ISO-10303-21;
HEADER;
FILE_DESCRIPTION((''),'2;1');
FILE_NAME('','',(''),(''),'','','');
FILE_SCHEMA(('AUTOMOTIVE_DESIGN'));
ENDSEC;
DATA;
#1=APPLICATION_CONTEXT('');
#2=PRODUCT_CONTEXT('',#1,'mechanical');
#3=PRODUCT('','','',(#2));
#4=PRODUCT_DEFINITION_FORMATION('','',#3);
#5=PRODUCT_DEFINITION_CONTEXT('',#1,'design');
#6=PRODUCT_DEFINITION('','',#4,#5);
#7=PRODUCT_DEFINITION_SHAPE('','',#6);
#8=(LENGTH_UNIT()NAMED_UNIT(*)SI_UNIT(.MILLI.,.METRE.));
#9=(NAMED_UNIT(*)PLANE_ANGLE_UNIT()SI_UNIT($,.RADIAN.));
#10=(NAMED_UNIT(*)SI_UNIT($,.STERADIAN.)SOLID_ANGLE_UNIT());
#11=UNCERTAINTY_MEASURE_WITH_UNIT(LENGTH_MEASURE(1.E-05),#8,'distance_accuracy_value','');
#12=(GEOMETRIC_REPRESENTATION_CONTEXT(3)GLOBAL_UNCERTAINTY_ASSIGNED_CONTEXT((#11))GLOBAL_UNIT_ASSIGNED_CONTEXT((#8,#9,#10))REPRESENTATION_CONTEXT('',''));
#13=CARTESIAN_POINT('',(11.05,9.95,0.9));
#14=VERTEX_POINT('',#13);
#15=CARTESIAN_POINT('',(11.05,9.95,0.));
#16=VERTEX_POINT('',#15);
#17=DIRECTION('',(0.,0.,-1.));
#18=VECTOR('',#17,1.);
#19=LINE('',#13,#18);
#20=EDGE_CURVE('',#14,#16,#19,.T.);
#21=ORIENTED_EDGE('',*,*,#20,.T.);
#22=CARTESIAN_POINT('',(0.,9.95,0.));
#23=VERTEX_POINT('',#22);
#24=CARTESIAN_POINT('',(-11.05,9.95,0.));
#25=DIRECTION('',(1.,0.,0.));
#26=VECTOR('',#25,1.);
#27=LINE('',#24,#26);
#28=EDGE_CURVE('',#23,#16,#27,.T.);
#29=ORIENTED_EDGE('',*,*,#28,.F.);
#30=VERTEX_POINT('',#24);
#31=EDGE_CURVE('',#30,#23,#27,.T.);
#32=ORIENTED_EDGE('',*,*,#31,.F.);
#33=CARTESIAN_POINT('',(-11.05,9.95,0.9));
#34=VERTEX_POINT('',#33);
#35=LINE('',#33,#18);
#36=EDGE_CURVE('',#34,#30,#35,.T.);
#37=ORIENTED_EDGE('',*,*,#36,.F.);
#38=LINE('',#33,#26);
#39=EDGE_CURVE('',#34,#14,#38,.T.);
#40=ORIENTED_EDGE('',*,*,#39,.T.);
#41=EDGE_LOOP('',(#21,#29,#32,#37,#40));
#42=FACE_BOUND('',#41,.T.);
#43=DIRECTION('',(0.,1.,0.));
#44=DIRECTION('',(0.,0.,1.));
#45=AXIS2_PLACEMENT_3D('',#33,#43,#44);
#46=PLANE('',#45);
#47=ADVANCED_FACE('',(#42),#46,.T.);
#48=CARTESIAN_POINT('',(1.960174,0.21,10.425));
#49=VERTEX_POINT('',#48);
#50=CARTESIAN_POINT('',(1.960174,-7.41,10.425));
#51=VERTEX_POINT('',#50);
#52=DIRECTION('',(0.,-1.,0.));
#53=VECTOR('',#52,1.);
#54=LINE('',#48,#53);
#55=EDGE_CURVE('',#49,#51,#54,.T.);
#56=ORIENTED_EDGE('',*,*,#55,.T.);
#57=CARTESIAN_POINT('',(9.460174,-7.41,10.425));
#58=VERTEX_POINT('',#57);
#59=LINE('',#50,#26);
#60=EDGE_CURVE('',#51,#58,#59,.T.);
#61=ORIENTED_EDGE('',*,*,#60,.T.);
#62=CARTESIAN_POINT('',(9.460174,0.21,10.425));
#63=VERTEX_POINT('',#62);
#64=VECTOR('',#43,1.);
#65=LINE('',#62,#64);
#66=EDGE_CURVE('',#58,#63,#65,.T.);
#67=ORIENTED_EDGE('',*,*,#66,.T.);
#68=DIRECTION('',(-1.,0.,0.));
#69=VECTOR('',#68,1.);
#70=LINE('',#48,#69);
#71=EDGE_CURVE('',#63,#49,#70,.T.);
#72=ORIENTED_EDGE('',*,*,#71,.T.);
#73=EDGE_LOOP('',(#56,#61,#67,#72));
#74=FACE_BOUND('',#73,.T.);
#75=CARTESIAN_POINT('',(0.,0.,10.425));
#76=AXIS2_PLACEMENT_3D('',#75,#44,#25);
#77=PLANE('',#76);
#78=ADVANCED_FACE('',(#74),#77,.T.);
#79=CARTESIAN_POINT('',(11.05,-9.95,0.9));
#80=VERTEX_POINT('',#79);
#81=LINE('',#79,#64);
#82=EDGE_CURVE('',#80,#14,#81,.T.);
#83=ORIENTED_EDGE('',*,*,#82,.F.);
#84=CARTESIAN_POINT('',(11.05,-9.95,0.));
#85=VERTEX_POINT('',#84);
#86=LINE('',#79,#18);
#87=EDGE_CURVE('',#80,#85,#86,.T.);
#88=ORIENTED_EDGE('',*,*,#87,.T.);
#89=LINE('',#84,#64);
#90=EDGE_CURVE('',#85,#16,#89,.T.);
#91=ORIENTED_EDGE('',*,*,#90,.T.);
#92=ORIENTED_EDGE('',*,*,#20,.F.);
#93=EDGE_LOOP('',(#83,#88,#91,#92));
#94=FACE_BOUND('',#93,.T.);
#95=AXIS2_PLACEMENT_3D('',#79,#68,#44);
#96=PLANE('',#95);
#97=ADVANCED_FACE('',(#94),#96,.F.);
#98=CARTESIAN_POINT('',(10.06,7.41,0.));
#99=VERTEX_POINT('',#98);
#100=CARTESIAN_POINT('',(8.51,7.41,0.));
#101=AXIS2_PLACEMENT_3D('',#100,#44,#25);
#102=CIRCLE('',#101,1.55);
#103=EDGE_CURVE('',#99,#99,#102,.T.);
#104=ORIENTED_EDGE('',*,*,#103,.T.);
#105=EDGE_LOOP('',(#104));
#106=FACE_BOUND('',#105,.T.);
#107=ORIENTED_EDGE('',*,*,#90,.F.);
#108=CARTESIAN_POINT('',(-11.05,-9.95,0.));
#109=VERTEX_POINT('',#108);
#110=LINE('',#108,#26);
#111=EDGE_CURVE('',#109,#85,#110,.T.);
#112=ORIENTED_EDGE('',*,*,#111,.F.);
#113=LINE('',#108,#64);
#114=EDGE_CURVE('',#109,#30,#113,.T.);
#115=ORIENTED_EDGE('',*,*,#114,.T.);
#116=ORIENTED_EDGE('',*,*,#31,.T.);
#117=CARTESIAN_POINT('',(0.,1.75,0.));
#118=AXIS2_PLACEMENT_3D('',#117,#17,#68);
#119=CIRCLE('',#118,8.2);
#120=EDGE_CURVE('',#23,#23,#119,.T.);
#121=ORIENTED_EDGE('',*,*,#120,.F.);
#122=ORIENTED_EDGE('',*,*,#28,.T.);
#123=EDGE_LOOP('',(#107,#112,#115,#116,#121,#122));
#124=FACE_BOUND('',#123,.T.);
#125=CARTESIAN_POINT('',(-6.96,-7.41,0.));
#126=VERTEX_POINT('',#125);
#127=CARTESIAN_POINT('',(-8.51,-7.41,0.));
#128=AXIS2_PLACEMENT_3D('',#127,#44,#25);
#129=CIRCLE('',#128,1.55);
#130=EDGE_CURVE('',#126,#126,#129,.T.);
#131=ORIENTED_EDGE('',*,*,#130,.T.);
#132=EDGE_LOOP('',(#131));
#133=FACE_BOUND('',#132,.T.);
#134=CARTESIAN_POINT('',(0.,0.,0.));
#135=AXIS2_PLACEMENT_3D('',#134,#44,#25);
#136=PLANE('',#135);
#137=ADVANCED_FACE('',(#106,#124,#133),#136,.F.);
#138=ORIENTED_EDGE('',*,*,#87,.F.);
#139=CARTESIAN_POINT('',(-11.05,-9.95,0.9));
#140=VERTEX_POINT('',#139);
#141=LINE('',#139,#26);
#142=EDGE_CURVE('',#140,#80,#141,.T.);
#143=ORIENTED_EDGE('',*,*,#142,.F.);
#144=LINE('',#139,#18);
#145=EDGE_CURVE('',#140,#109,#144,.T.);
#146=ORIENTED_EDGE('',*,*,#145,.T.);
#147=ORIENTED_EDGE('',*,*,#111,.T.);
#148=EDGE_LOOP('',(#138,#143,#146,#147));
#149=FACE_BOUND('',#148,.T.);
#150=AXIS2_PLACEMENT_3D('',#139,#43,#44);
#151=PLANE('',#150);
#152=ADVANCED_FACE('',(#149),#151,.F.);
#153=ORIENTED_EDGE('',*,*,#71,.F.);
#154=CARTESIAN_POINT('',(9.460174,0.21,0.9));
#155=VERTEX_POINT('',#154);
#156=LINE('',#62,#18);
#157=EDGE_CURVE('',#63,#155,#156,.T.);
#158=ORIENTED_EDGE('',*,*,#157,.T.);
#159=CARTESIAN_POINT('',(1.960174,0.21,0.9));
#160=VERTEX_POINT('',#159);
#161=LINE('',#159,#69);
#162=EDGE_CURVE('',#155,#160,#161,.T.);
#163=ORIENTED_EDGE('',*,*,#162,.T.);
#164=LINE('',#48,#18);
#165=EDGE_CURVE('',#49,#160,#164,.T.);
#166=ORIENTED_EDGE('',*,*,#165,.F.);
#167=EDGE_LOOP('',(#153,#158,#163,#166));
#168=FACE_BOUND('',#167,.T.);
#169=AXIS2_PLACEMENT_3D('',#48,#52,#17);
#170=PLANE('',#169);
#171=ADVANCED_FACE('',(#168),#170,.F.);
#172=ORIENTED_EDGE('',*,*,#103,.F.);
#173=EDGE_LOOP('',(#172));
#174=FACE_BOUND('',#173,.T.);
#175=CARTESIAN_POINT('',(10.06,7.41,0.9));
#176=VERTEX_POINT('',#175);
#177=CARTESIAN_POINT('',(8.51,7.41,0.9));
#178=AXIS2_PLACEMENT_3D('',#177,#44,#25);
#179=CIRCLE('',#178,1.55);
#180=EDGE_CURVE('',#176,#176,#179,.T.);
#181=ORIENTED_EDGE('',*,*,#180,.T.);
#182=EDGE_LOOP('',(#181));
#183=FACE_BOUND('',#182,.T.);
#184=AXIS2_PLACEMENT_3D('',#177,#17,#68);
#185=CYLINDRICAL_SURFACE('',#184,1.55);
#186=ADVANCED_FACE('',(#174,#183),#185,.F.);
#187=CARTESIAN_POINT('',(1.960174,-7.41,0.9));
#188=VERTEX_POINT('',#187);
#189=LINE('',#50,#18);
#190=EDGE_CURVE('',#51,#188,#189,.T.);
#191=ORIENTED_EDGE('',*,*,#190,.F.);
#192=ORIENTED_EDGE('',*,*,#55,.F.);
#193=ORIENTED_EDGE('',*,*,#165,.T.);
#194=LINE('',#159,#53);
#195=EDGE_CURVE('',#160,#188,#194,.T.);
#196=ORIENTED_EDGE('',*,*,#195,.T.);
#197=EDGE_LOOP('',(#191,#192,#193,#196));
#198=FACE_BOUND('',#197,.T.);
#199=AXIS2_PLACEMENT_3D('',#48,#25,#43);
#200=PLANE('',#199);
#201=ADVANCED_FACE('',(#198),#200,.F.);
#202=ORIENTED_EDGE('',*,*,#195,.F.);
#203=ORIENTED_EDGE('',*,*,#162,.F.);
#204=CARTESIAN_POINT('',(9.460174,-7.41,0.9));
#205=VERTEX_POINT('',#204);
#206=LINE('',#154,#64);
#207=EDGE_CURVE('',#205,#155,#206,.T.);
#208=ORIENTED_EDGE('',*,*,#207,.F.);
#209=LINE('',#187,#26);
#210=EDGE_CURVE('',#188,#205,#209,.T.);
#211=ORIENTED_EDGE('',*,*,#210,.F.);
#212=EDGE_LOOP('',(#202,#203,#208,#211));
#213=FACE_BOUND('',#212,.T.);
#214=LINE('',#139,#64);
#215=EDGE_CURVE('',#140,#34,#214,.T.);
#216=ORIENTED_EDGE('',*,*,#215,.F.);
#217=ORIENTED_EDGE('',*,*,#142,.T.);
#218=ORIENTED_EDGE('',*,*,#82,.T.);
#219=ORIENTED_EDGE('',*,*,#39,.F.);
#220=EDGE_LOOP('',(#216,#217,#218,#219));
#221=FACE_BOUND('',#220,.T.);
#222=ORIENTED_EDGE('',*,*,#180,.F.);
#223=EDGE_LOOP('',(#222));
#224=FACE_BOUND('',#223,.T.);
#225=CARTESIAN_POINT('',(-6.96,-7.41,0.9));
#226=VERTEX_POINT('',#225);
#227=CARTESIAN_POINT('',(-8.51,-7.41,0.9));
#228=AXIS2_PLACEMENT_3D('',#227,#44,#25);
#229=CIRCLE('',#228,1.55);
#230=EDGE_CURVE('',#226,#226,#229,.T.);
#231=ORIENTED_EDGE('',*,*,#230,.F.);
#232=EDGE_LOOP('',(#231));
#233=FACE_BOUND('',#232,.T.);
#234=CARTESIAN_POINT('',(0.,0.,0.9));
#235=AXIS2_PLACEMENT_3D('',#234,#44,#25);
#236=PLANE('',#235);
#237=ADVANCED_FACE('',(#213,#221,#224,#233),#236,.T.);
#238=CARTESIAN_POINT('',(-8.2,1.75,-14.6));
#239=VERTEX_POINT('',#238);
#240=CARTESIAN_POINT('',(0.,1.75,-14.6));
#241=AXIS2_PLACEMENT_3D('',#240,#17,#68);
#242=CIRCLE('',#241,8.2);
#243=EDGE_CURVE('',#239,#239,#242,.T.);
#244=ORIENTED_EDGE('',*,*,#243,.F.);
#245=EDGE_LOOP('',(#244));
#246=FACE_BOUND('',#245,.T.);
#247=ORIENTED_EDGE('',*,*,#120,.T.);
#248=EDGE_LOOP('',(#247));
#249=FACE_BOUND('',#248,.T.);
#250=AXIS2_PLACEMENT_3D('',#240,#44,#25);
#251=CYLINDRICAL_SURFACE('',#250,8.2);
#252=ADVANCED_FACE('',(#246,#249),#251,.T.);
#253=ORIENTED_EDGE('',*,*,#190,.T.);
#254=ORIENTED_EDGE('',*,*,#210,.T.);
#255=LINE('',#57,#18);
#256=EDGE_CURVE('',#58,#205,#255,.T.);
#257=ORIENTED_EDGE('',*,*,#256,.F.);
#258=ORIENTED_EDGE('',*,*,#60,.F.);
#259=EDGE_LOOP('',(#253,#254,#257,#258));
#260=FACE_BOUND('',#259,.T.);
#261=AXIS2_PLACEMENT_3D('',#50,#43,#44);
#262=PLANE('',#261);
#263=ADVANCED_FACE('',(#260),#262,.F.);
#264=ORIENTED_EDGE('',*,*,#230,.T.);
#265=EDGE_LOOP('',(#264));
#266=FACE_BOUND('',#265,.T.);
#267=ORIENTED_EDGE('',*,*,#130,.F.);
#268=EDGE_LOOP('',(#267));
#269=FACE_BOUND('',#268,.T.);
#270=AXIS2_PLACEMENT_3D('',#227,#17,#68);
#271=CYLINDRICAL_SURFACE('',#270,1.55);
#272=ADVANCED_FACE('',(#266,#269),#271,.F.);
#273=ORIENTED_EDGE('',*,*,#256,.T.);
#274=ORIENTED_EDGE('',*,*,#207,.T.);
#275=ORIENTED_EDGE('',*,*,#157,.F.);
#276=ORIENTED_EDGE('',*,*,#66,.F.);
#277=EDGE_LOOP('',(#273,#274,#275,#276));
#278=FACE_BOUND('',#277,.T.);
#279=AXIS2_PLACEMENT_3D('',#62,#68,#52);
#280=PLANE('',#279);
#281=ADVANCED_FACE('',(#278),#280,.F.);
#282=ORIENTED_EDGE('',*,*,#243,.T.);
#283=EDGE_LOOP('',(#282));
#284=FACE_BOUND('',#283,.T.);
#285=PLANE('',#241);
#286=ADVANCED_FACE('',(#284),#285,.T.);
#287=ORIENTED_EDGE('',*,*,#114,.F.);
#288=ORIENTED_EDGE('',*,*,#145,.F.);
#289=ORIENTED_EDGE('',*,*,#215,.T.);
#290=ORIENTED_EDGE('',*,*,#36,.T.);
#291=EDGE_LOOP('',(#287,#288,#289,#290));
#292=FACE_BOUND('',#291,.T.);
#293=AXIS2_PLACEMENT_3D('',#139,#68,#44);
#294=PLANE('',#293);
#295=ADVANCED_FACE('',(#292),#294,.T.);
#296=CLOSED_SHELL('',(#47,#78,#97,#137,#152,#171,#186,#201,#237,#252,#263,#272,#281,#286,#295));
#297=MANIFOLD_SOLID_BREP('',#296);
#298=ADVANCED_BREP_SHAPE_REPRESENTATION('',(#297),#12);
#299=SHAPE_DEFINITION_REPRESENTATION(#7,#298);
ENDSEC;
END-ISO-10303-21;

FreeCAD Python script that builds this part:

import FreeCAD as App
import Part
import Sketcher

V = App.Vector
Q = App.Units.Quantity


def add_polygon(sketch, points):
    """Adds a closed chain of lines whose ends are joined by coincident constraints."""
    first, n = sketch.GeometryCount, len(points)
    for a, b in zip(points, points[1:] + points[:1]):
        sketch.addGeometry(Part.LineSegment(App.Vector(*a, 0), App.Vector(*b, 0)), False)
    for i in range(n):
        sketch.addConstraint(Sketcher.Constraint("Coincident", first + i, 2, first + (i + 1) % n, 1))

doc = App.newDocument("Part")
body = doc.addObject("PartDesign::Body", "Body")

# Sketch on XY plane
sketch1 = body.newObject("Sketcher::SketchObject", "Sketch")
sketch1.AttachmentSupport = (doc.getObject("XY_Plane"), [""])
sketch1.MapMode = "FlatFace"
add_polygon(sketch1, [(-11.1, 9.9), (-11.1, -9.9), (11.1, -9.9), (11.1, 9.9)])  # lines 0-3
sketch1.addGeometry(Part.Circle(V(-8.5, -7.4, 0), V(0, 0, 1), 1.6), False)  # 4
sketch1.addGeometry(Part.Circle(V(8.5, 7.4, 0), V(0, 0, 1), 1.6), False)  # 5
sketch1.addConstraint(Sketcher.Constraint("Vertical", 0))
sketch1.addConstraint(Sketcher.Constraint("Horizontal", 1))
sketch1.addConstraint(Sketcher.Constraint("Vertical", 2))
sketch1.addConstraint(Sketcher.Constraint("Horizontal", 3))
sketch1.addConstraint(Sketcher.Constraint("Equal", 4, 5))
sketch1.addConstraint(Sketcher.Constraint("Symmetric", 4, 3, 5, 3, -1, 1))
sketch1.addConstraint(Sketcher.Constraint("Symmetric", 0, 2, 2, 2, -1, 1))
sketch1.addConstraint(Sketcher.Constraint("Diameter", 4, Q("3.1 mm")))
sketch1.addConstraint(Sketcher.Constraint("DistanceX", 1, 1, 1, 2, Q("22.1 mm")))
sketch1.addConstraint(Sketcher.Constraint("DistanceY", 0, 2, 0, 1, Q("19.9 mm")))
sketch1.addConstraint(Sketcher.Constraint("DistanceX", 4, 3, -1, 1, Q("8.51 mm")))
sketch1.addConstraint(Sketcher.Constraint("DistanceY", 4, 3, -1, 1, Q("7.41 mm")))
pad1 = body.newObject("PartDesign::Pad", "Pad")
pad1.Profile = sketch1
pad1.Length = 0.9

# Sketch on XY plane
sketch2 = body.newObject("Sketcher::SketchObject", "Sketch001")
sketch2.AttachmentSupport = (doc.getObject("XY_Plane"), [""])
sketch2.MapMode = "FlatFace"
sketch2.AttachmentOffset = App.Placement(V(0, 0, 0.9), App.Rotation())
add_polygon(sketch2, [(2, 0), (2, -7), (9, -7), (9, 0)])  # lines 0-3
sketch2.addConstraint(Sketcher.Constraint("Vertical", 0))
sketch2.addConstraint(Sketcher.Constraint("Horizontal", 1))
sketch2.addConstraint(Sketcher.Constraint("Vertical", 2))
sketch2.addConstraint(Sketcher.Constraint("Horizontal", 3))
sketch2.addConstraint(Sketcher.Constraint("DistanceX", 1, 1, 1, 2, Q("7.5 mm")))
sketch2.addConstraint(Sketcher.Constraint("DistanceY", 0, 2, 0, 1, Q("7.62 mm")))
sketch2.addConstraint(Sketcher.Constraint("DistanceY", 0, 2, -1, 1, Q("7.41 mm")))
sketch2.addConstraint(Sketcher.Constraint("DistanceX", -1, 1, 0, 2, Q("1.960174 mm")))
pad2 = body.newObject("PartDesign::Pad", "Pad001")
pad2.Profile = sketch2
pad2.Length = 9.525

# Sketch on XY plane
sketch3 = body.newObject("Sketcher::SketchObject", "Sketch002")
sketch3.AttachmentSupport = (doc.getObject("XY_Plane"), [""])
sketch3.MapMode = "FlatFace"
sketch3.addGeometry(Part.Circle(V(0, 2, 0), V(0, 0, 1), 8), False)
sketch3.addConstraint(Sketcher.Constraint("PointOnObject", 0, 3, -2))
sketch3.addConstraint(Sketcher.Constraint("Diameter", 0, Q("16.4 mm")))
sketch3.addConstraint(Sketcher.Constraint("DistanceY", -1, 1, 0, 3, Q("1.75 mm")))
pad3 = body.newObject("PartDesign::Pad", "Pad002")
pad3.Profile = sketch3
pad3.Length = 14.6
pad3.Reversed = True

doc.recompute()
